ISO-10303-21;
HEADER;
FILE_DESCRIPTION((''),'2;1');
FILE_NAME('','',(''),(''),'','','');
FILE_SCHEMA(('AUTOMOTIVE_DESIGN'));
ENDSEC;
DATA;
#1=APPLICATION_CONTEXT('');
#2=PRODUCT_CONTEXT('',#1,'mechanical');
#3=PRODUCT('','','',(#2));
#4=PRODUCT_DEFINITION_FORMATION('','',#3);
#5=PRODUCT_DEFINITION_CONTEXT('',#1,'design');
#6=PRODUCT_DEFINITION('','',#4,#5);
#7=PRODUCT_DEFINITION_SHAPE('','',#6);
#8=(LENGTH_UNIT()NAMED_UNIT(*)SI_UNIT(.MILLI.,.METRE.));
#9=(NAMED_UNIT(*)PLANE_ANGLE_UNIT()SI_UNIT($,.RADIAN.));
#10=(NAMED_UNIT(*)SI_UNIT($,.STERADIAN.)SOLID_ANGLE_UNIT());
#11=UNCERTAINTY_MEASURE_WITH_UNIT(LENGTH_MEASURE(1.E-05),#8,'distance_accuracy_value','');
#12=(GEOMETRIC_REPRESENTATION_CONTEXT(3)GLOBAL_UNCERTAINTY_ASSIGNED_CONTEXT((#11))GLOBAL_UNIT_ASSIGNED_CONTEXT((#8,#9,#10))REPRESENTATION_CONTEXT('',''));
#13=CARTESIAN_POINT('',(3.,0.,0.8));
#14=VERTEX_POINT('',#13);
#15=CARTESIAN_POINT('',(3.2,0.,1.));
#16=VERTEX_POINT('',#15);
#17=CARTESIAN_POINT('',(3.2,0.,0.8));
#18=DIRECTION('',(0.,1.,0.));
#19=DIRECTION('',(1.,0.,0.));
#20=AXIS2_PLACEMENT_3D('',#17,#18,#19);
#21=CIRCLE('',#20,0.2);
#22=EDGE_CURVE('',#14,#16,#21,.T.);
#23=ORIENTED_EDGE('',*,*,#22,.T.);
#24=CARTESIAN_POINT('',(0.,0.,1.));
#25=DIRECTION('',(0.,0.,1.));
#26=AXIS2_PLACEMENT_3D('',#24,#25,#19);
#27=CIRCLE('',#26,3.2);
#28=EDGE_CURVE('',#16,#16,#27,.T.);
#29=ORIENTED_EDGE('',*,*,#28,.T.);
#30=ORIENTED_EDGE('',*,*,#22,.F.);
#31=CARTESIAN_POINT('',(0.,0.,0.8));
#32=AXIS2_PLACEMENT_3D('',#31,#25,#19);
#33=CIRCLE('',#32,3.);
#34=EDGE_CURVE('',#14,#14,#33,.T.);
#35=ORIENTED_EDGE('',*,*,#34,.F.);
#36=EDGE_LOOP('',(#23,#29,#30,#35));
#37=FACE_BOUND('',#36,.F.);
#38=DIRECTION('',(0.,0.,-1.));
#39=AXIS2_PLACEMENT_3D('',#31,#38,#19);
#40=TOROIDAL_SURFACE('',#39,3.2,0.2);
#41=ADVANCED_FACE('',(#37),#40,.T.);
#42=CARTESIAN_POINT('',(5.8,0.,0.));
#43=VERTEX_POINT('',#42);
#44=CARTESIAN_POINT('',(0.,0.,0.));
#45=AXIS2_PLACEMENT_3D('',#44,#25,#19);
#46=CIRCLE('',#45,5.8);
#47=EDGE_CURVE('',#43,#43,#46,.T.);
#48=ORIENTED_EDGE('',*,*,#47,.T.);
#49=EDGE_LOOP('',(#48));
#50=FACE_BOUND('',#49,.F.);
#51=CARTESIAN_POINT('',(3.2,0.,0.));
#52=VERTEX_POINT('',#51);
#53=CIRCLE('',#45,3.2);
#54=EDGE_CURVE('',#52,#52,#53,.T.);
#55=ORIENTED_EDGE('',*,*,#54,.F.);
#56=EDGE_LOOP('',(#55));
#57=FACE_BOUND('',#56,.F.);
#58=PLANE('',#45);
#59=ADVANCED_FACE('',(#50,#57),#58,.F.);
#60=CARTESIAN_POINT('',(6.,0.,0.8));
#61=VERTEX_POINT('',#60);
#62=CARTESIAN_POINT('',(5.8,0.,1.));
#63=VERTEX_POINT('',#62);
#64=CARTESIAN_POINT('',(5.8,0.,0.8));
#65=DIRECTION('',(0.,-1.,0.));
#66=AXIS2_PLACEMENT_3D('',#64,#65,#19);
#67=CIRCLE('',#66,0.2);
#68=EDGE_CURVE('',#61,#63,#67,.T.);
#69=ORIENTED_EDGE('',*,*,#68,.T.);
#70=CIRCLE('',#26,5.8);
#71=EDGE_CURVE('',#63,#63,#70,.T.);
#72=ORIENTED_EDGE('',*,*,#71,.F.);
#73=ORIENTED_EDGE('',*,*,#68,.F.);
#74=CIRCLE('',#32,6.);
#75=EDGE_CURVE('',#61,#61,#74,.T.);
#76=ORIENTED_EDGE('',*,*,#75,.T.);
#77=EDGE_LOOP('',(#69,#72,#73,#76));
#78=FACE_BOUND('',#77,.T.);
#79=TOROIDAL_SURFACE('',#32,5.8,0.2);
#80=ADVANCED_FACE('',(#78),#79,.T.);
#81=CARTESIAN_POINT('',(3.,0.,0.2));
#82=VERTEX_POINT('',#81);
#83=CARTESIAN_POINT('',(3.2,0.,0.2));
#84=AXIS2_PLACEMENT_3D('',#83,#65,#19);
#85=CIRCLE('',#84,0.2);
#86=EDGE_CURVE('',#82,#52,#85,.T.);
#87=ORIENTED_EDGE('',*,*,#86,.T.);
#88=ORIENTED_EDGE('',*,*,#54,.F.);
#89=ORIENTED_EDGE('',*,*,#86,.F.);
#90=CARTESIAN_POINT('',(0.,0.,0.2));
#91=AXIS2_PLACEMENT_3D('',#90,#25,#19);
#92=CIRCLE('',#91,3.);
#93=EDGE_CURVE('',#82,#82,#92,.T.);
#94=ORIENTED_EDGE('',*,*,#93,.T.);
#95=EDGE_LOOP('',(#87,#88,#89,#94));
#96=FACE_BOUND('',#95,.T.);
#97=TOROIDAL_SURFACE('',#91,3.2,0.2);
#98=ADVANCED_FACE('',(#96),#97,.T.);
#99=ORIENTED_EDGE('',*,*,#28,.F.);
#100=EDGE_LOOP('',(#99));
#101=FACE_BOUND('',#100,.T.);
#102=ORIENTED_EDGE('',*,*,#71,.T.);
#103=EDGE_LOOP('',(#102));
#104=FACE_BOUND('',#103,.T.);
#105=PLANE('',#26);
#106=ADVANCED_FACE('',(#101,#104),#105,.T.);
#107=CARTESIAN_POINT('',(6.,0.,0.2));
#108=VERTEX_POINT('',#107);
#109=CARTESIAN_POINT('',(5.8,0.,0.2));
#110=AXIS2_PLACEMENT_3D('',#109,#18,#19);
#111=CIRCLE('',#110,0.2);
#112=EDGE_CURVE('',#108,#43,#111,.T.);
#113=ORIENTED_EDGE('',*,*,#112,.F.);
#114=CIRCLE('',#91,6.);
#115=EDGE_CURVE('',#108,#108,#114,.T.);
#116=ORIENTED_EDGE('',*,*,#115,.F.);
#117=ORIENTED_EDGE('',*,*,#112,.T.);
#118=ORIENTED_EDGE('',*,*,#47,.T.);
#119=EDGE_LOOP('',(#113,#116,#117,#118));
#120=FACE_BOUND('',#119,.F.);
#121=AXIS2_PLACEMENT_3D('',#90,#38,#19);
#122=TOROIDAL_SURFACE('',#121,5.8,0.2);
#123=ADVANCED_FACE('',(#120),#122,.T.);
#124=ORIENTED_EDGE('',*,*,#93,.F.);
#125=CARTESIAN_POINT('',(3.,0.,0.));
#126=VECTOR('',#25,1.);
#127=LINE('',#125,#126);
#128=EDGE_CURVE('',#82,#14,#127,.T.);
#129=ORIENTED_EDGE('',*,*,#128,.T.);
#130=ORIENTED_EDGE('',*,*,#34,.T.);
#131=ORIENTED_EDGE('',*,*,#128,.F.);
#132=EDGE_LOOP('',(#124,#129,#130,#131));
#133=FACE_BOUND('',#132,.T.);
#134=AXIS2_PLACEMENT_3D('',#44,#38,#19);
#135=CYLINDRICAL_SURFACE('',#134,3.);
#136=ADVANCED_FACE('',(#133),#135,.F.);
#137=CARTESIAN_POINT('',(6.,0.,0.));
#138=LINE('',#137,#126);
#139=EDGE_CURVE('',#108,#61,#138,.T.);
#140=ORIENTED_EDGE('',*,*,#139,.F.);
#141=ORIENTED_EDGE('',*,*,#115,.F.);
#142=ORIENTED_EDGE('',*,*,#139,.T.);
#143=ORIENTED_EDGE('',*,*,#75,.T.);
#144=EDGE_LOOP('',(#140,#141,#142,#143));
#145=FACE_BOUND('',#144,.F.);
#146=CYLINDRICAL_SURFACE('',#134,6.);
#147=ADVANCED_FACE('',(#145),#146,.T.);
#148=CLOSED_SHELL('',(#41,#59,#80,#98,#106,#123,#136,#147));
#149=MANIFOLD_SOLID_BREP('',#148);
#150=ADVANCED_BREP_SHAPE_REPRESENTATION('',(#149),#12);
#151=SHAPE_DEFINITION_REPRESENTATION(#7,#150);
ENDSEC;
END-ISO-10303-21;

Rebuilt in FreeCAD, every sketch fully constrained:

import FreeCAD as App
import Part
import Sketcher
from FreeCAD import Vector
Q = App.Units.Quantity

doc = App.newDocument("Part")
params = doc.addObject("Spreadsheet::Sheet", "Params")
for row, (alias, value) in enumerate([
    ("sketch1_diameter", "12 mm"),
    ("sketch1_diameter2", "6 mm"),
    ("pad1_length", "1 mm"),
    ("fillet_radius", "0.2 mm"),
], start=1):
    params.set(f"A{row}", alias)
    params.set(f"B{row}", "=" + value)
    params.setAlias(f"B{row}", alias)

body = doc.addObject("PartDesign::Body", "Body")

# Sketch on XY plane
sketch1 = doc.addObject("Sketcher::SketchObject", "Sketch")
body.addObject(sketch1)
sketch1.AttachmentSupport = (doc.XY_Plane, [""])
sketch1.MapMode = "FlatFace"
sketch1.addGeometry([
    Part.Circle(Vector(0, 0, 0), Vector(0, 0, 1), 6),
    Part.Circle(Vector(0, 0, 0), Vector(0, 0, 1), 3),
], False)
sketch1.addConstraint([
    Sketcher.Constraint("Coincident", 0, 3, -1, 1),
    Sketcher.Constraint("Coincident", 1, 3, -1, 1),
    Sketcher.Constraint("Diameter", 0, Q("12 mm")),
    Sketcher.Constraint("Diameter", 1, Q("6 mm")),
])
sketch1.setExpression("Constraints[2]", "Params.sketch1_diameter")
sketch1.setExpression("Constraints[3]", "Params.sketch1_diameter2")
pad1 = doc.addObject("PartDesign::Pad", "Pad")
body.addObject(pad1)
pad1.Profile = sketch1
pad1.setExpression("Length", "Params.pad1_length")
doc.recompute()

fillet = doc.addObject("PartDesign::Fillet", "Fillet")
body.addObject(fillet)
fillet.Base = (pad1, ["Edge1"])
fillet.UseAllEdges = True
fillet.setExpression("Radius", "Params.fillet_radius")

doc.recompute()
